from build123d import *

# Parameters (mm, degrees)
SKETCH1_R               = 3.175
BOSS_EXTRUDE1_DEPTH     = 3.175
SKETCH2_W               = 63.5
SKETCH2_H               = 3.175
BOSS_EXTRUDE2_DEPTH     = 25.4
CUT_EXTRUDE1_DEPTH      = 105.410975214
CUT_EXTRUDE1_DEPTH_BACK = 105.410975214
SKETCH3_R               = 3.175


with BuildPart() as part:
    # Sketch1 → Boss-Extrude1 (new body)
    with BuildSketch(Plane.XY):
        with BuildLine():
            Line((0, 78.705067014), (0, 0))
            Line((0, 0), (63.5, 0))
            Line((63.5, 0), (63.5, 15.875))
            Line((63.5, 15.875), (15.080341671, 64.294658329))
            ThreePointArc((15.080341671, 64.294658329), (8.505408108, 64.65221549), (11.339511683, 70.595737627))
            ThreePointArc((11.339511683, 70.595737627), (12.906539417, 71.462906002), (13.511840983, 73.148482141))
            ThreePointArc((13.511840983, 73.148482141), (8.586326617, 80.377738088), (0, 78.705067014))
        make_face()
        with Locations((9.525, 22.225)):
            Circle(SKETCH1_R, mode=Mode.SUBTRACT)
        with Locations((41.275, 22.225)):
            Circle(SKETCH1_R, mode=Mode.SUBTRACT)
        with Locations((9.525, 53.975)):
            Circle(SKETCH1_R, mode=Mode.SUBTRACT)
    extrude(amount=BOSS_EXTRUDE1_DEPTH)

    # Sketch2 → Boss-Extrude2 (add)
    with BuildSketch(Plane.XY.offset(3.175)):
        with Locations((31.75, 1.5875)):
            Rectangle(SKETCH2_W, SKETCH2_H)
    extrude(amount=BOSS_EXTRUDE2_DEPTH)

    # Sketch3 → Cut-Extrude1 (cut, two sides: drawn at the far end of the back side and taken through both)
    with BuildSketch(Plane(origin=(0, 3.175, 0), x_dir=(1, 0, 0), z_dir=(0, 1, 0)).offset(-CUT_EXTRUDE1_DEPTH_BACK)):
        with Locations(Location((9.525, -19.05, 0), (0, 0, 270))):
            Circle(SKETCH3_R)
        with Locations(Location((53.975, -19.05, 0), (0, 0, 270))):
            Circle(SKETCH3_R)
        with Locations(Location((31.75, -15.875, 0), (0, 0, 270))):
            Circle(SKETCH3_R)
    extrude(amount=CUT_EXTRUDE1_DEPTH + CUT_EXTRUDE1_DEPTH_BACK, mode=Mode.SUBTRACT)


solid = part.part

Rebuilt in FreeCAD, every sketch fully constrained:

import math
import FreeCAD as App
import Part
import Sketcher

V = App.Vector
Q = App.Units.Quantity

doc = App.newDocument("Part")
body = doc.addObject("PartDesign::Body", "Body")

# Sketch on XY plane
sketch1 = body.newObject("Sketcher::SketchObject", "Sketch")
sketch1.AttachmentSupport = (doc.getObject("XY_Plane"), [""])
sketch1.MapMode = "FlatFace"
sketch1.addGeometry(Part.LineSegment(V(0, 78.705067, 0), V(0, 0, 0)), False)
sketch1.addGeometry(Part.LineSegment(V(0, 0, 0), V(63.5, 0, 0)), False)
sketch1.addGeometry(Part.LineSegment(V(63.5, 0, 0), V(63.5, 15.875, 0)), False)
sketch1.addGeometry(Part.LineSegment(V(63.5, 15.875, 0), V(15.080342, 64.294658, 0)), False)
sketch1.addGeometry(Part.ArcOfCircle(Part.Circle(V(11.9126, 66.675, 0), V(0, 0, 1), 3.9624), math.radians(98.315948), math.radians(323.077637)), False)
sketch1.addGeometry(Part.ArcOfCircle(Part.Circle(V(10.972147, 73.109031, 0), V(0, 0, 1), 2.54), math.radians(-81.684052), math.radians(0.889951)), False)
sketch1.addGeometry(Part.ArcOfCircle(Part.Circle(V(5.5626, 73.025, 0), V(0, 0, 1), 7.9502), math.radians(0.889951), math.radians(134.401377)), False)
sketch1.addGeometry(Part.Circle(V(9.525, 22.225, 0), V(0, 0, 1), 3.175), False)
sketch1.addGeometry(Part.Circle(V(41.275, 22.225, 0), V(0, 0, 1), 3.175), False)
sketch1.addGeometry(Part.Circle(V(9.525, 53.975, 0), V(0, 0, 1), 3.175), False)
sketch1.addConstraint(Sketcher.Constraint("Coincident", 0, 2, 1, 1))
sketch1.addConstraint(Sketcher.Constraint("Coincident", 1, 2, 2, 1))
sketch1.addConstraint(Sketcher.Constraint("Coincident", 2, 2, 3, 1))
sketch1.addConstraint(Sketcher.Constraint("Coincident", 3, 2, 4, 2))
sketch1.addConstraint(Sketcher.Constraint("Tangent", 4, 1, 5, 1))
sketch1.addConstraint(Sketcher.Constraint("Tangent", 5, 2, 6, 1))
sketch1.addConstraint(Sketcher.Constraint("Coincident", 6, 2, 0, 1))
sketch1.addConstraint(Sketcher.Constraint("Vertical", 0))
sketch1.addConstraint(Sketcher.Constraint("Horizontal", 1))
sketch1.addConstraint(Sketcher.Constraint("Vertical", 2))
sketch1.addConstraint(Sketcher.Constraint("Coincident", 0, 2, -1, 1))
sketch1.addConstraint(Sketcher.Constraint("Equal", 7, 8))
sketch1.addConstraint(Sketcher.Constraint("Equal", 8, 9))
sketch1.addConstraint(Sketcher.Constraint("Horizontal", 7, 3, 8, 3))
sketch1.addConstraint(Sketcher.Constraint("Vertical", 7, 3, 9, 3))
sketch1.addConstraint(Sketcher.Constraint("Radius", 5, Q("0.1 in")))
sketch1.addConstraint(Sketcher.Constraint("Diameter", 7, Q("0.25 in")))
sketch1.addConstraint(Sketcher.Constraint("DistanceX", 1, 1, 1, 2, Q("2.5 in")))
sketch1.addConstraint(Sketcher.Constraint("Angle", 3, Q("135 deg")))
sketch1.addConstraint(Sketcher.Constraint("Radius", 4, Q("0.156 in")))
sketch1.addConstraint(Sketcher.Constraint("Radius", 6, Q("0.313 in")))
sketch1.addConstraint(Sketcher.Constraint("DistanceY", 7, 3, 6, 3, Q("2 in")))
sketch1.addConstraint(Sketcher.Constraint("DistanceY", 9, 3, 4, 3, Q("0.5 in")))
sketch1.addConstraint(Sketcher.Constraint("DistanceY", 2, 2, 9, 3, Q("1.5 in")))
sketch1.addConstraint(Sketcher.Constraint("DistanceY", 2, 1, 2, 2, Q("0.625 in")))
sketch1.addConstraint(Sketcher.Constraint("DistanceX", 6, 3, 4, 3, Q("0.25 in")))
sketch1.addConstraint(Sketcher.Constraint("DistanceY", 4, 3, 6, 3, Q("0.25 in")))
sketch1.addConstraint(Sketcher.Constraint("DistanceX", 7, 3, 8, 3, Q("1.25 in")))
sketch1.addConstraint(Sketcher.Constraint("DistanceX", -1, 1, 4, 3, Q("0.469 in")))
sketch1.addConstraint(Sketcher.Constraint("DistanceX", -1, 1, 7, 3, Q("0.375 in")))
pad1 = body.newObject("PartDesign::Pad", "Pad")
pad1.Profile = sketch1
pad1.Length = Q("0.125 in")

# Sketch on XY plane
sketch2 = body.newObject("Sketcher::SketchObject", "Sketch001")
sketch2.AttachmentSupport = (doc.getObject("XY_Plane"), [""])
sketch2.MapMode = "FlatFace"
sketch2.AttachmentOffset = App.Placement(V(0, 0, 0.125 * 25.4), App.Rotation())
sketch2.addGeometry(Part.LineSegment(V(0, 3.175, 0), V(0, 0, 0)), False)
sketch2.addGeometry(Part.LineSegment(V(0, 0, 0), V(63.5, 0, 0)), False)
sketch2.addGeometry(Part.LineSegment(V(63.5, 0, 0), V(63.5, 3.175, 0)), False)
sketch2.addGeometry(Part.LineSegment(V(63.5, 3.175, 0), V(0, 3.175, 0)), False)
sketch2.addConstraint(Sketcher.Constraint("Coincident", 0, 2, 1, 1))
sketch2.addConstraint(Sketcher.Constraint("Coincident", 1, 2, 2, 1))
sketch2.addConstraint(Sketcher.Constraint("Coincident", 2, 2, 3, 1))
sketch2.addConstraint(Sketcher.Constraint("Coincident", 3, 2, 0, 1))
sketch2.addConstraint(Sketcher.Constraint("Vertical", 0))
sketch2.addConstraint(Sketcher.Constraint("Horizontal", 1))
sketch2.addConstraint(Sketcher.Constraint("Vertical", 2))
sketch2.addConstraint(Sketcher.Constraint("Horizontal", 3))
sketch2.addConstraint(Sketcher.Constraint("Coincident", 0, 2, -1, 1))
sketch2.addConstraint(Sketcher.Constraint("DistanceX", 1, 1, 1, 2, Q("2.5 in")))
sketch2.addConstraint(Sketcher.Constraint("DistanceY", 0, 2, 0, 1, Q("0.125 in")))
pad2 = body.newObject("PartDesign::Pad", "Pad001")
pad2.Profile = sketch2
pad2.Length = Q("1 in")

# Sketch on XZ plane
sketch3 = body.newObject("Sketcher::SketchObject", "Sketch002")
sketch3.AttachmentSupport = (doc.getObject("XZ_Plane"), [""])
sketch3.MapMode = "FlatFace"
sketch3.AttachmentOffset = App.Placement(V(0, 0, -0.125 * 25.4), App.Rotation())
sketch3.addGeometry(Part.Circle(V(9.525, 19.05, 0), V(0, 0, 1), 3.175), False)
sketch3.addGeometry(Part.Circle(V(53.975, 19.05, 0), V(0, 0, 1), 3.175), False)
sketch3.addGeometry(Part.Circle(V(31.75, 15.875, 0), V(0, 0, 1), 3.175), False)
sketch3.addConstraint(Sketcher.Constraint("Equal", 0, 1))
sketch3.addConstraint(Sketcher.Constraint("Equal", 1, 2))
sketch3.addConstraint(Sketcher.Constraint("Horizontal", 0, 3, 1, 3))
sketch3.addConstraint(Sketcher.Constraint("Diameter", 0, Q("0.25 in")))
sketch3.addConstraint(Sketcher.Constraint("DistanceY", -1, 1, 0, 3, Q("0.75 in")))
sketch3.addConstraint(Sketcher.Constraint("DistanceX", -1, 1, 2, 3, Q("1.25 in")))
sketch3.addConstraint(Sketcher.Constraint("DistanceX", 0, 3, 1, 3, Q("1.75 in")))
sketch3.addConstraint(Sketcher.Constraint("DistanceX", -1, 1, 0, 3, Q("0.375 in")))
sketch3.addConstraint(Sketcher.Constraint("DistanceY", -1, 1, 2, 3, Q("0.625 in")))
pocket1 = body.newObject("PartDesign::Pocket", "Pocket")
pocket1.Profile = sketch3
pocket1.Type = "ThroughAll"
pocket1.Midplane = True

doc.recompute()
